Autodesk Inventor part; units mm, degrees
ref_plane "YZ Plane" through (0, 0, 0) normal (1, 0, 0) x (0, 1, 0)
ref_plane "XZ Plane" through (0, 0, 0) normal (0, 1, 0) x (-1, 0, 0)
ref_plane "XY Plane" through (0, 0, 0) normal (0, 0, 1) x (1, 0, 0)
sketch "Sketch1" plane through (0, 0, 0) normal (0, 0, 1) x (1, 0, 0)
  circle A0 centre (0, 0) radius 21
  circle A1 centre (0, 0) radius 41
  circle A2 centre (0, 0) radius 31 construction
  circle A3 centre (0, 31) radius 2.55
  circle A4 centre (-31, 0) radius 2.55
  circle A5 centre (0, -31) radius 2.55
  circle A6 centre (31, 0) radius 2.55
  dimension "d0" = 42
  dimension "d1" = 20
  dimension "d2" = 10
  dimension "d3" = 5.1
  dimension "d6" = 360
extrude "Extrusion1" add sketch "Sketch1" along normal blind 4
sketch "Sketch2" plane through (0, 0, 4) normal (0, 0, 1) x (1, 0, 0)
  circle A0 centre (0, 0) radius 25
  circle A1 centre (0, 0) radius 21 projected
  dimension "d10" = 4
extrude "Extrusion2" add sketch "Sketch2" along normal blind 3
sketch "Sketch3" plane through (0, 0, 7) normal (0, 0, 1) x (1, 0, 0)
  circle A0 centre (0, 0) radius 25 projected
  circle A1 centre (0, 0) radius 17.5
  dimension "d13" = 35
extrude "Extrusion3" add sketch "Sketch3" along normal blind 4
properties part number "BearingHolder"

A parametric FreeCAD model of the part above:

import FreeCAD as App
import Part
import Sketcher

V = App.Vector

doc = App.newDocument("Part")
body = doc.addObject("PartDesign::Body", "Body")

sketch1 = doc.addObject("Sketcher::SketchObject", "Sketch")
body.addObject(sketch1)
sketch1.AttachmentSupport = (doc.XY_Plane, [""])
sketch1.MapMode = "FlatFace"
sketch1.addGeometry([
    Part.Circle(V(0, 0, 0), V(0, 0, 1), 41),
    Part.Circle(V(0, -31, 0), V(0, 0, 1), 2.5),
    Part.Circle(V(-31, 0, 0), V(0, 0, 1), 2.5),
    Part.Circle(V(0, 0, 0), V(0, 0, 1), 21),
    Part.Circle(V(31, 0, 0), V(0, 0, 1), 2.5),
    Part.Circle(V(0, 31, 0), V(0, 0, 1), 2.5),
], False)
sketch1.addConstraint([
    Sketcher.Constraint("Coincident", 0, 3, -1, 1),
    Sketcher.Constraint("Coincident", 3, 3, -1, 1),
    Sketcher.Constraint("Equal", 1, 2),
    Sketcher.Constraint("Equal", 2, 4),
    Sketcher.Constraint("Equal", 4, 5),
    Sketcher.Constraint("Symmetric", 2, 3, 4, 3, -1, 1),
    Sketcher.Constraint("Symmetric", 1, 3, 5, 3, -1, 1),
    Sketcher.Constraint("PointOnObject", 1, 3, -2),
    Sketcher.Constraint("PointOnObject", 2, 3, -1),
    Sketcher.Constraint("Diameter", 3, 42.0),
    Sketcher.Constraint("Diameter", 1, 5.1),
    Sketcher.Constraint("Diameter", 0, 82.0),
    Sketcher.Constraint("DistanceY", 1, 3, -1, 1, 31.0),
    Sketcher.Constraint("DistanceX", 2, 3, -1, 1, 31.0),
])
pad1 = doc.addObject("PartDesign::Pad", "Pad")
body.addObject(pad1)
pad1.Profile = sketch1
pad1.Length = 4

sketch2 = doc.addObject("Sketcher::SketchObject", "Sketch001")
body.addObject(sketch2)
sketch2.AttachmentSupport = (doc.XY_Plane, [""])
sketch2.MapMode = "FlatFace"
sketch2.AttachmentOffset = App.Placement(V(0, 0, 4), App.Rotation())
sketch2.addGeometry([
    Part.Circle(V(0, 0, 0), V(0, 0, 1), 25),
    Part.Circle(V(0, 0, 0), V(0, 0, 1), 21),
], False)
sketch2.addConstraint([
    Sketcher.Constraint("Coincident", 0, 3, -1, 1),
    Sketcher.Constraint("Coincident", 1, 3, -1, 1),
    Sketcher.Constraint("Diameter", 0, 50.0),
    Sketcher.Constraint("Diameter", 1, 42.0),
])
pad2 = doc.addObject("PartDesign::Pad", "Pad001")
body.addObject(pad2)
pad2.Profile = sketch2
pad2.Length = 3

sketch3 = doc.addObject("Sketcher::SketchObject", "Sketch002")
body.addObject(sketch3)
sketch3.AttachmentSupport = (doc.XY_Plane, [""])
sketch3.MapMode = "FlatFace"
sketch3.AttachmentOffset = App.Placement(V(0, 0, 7), App.Rotation())
sketch3.addGeometry([
    Part.Circle(V(0, 0, 0), V(0, 0, 1), 25),
    Part.Circle(V(0, 0, 0), V(0, 0, 1), 18),
], False)
sketch3.addConstraint([
    Sketcher.Constraint("Coincident", 0, 3, -1, 1),
    Sketcher.Constraint("Coincident", 1, 3, -1, 1),
    Sketcher.Constraint("Diameter", 1, 35.0),
    Sketcher.Constraint("Diameter", 0, 50.0),
])
pad3 = doc.addObject("PartDesign::Pad", "Pad002")
body.addObject(pad3)
pad3.Profile = sketch3
pad3.Length = 4

doc.recompute()
